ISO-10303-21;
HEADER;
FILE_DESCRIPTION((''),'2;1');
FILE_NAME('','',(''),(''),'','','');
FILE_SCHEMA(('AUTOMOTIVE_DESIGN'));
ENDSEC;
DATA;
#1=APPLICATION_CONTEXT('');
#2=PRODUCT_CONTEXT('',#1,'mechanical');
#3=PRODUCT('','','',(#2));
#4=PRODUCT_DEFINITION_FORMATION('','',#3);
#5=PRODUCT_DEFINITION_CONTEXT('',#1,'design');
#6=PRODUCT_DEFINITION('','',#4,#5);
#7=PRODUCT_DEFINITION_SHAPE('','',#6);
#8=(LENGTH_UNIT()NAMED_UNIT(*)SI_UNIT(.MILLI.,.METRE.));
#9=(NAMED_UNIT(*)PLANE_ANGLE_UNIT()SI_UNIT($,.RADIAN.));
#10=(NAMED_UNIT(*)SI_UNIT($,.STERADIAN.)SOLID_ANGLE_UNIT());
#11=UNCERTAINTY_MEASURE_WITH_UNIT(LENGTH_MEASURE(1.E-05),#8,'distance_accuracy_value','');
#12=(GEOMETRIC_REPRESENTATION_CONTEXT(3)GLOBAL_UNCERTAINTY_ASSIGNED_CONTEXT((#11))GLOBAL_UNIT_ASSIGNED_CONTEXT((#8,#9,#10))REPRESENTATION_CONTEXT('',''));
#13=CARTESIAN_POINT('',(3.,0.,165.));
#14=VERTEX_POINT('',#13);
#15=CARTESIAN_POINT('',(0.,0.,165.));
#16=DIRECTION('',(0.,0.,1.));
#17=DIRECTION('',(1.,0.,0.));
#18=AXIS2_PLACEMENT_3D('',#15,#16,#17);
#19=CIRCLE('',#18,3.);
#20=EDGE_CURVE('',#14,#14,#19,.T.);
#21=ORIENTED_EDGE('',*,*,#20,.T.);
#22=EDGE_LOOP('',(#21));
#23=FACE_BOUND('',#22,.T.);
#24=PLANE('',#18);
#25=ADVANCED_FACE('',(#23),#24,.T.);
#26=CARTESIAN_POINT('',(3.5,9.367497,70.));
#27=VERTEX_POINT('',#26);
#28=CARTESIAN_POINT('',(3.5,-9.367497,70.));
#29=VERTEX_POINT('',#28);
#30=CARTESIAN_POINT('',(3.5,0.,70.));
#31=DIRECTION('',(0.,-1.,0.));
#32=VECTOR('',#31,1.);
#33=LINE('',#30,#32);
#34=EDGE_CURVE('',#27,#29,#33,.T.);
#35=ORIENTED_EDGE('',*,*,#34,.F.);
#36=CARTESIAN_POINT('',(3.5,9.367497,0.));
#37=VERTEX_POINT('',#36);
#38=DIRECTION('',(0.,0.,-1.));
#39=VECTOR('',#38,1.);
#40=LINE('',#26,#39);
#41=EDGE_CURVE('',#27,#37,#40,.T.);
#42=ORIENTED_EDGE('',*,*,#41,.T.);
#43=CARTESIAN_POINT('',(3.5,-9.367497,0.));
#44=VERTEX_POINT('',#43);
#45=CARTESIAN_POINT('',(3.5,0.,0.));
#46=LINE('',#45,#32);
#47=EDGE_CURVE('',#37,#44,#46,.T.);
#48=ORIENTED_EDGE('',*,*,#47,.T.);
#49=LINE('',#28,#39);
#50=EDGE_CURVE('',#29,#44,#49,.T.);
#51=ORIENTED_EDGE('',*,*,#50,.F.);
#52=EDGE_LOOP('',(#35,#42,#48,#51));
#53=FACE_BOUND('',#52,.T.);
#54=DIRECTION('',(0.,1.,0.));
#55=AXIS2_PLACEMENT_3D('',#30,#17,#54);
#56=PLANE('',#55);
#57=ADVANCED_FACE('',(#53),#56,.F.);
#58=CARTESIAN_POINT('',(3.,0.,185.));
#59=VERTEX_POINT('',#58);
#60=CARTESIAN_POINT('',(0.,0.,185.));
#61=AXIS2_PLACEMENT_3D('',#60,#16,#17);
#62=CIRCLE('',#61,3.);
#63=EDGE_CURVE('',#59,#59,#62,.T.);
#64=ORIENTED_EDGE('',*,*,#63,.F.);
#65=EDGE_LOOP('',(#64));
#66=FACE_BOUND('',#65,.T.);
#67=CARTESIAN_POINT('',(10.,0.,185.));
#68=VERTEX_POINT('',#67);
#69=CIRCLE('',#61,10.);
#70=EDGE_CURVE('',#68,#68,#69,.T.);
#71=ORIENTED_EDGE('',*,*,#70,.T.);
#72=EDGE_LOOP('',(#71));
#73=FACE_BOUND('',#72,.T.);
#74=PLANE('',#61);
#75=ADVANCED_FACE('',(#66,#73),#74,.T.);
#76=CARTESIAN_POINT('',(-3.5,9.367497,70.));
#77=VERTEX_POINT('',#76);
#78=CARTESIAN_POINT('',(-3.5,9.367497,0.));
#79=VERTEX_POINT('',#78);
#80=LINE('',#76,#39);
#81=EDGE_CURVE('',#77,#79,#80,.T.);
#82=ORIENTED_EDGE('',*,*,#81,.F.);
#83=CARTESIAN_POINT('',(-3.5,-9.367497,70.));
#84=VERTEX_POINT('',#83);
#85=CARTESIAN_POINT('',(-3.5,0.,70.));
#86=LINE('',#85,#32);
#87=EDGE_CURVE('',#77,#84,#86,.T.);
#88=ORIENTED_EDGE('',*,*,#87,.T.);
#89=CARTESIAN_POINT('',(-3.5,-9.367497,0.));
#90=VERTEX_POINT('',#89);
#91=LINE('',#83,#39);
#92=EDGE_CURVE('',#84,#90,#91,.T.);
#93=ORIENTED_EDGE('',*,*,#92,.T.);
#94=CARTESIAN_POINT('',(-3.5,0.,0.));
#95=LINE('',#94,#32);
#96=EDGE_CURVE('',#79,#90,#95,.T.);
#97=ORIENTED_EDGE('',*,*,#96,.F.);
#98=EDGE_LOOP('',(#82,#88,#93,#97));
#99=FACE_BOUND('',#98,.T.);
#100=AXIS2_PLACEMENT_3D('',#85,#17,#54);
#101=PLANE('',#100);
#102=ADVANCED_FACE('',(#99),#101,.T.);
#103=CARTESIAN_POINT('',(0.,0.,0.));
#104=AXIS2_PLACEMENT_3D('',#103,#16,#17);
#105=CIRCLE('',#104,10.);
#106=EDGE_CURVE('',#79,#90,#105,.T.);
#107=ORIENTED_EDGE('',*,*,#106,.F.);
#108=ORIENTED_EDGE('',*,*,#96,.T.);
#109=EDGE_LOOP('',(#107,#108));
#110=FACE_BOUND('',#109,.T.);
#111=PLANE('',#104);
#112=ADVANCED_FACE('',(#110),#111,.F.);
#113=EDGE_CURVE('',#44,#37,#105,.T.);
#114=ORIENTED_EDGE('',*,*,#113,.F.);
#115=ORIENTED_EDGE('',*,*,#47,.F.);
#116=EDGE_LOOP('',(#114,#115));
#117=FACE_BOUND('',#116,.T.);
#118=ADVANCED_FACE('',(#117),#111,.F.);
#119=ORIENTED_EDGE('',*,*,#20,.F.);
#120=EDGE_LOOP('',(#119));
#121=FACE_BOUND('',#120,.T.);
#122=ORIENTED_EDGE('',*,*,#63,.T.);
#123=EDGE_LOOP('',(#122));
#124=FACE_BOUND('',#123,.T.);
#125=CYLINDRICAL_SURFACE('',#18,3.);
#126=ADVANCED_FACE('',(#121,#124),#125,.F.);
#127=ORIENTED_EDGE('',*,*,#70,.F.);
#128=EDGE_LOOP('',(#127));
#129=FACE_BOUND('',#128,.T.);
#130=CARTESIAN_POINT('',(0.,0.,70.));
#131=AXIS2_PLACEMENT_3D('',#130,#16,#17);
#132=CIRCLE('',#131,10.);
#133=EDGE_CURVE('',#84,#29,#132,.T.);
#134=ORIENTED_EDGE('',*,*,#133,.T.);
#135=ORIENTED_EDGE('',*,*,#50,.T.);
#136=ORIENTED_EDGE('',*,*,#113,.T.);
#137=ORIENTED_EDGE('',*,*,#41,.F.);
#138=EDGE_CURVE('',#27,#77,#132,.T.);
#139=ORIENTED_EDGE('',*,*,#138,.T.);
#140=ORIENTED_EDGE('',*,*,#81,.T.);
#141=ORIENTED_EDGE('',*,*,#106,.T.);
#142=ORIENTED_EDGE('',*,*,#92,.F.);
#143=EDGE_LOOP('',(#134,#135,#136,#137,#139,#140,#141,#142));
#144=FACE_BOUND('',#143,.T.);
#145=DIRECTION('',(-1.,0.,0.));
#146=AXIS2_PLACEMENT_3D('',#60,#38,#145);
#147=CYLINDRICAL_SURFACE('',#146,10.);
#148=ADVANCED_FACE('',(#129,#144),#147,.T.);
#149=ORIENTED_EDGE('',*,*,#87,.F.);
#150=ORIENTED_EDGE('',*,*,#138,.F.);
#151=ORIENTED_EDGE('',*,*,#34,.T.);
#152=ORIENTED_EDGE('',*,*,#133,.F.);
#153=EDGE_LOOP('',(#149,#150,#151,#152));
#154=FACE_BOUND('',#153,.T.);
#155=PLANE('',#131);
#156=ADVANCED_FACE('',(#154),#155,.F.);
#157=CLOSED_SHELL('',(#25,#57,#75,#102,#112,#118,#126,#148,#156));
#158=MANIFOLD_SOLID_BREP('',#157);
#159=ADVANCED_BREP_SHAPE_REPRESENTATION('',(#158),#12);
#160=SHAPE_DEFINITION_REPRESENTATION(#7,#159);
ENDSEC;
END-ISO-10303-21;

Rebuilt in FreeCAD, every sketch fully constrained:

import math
import FreeCAD as App
import Part
import Sketcher
from FreeCAD import Vector

doc = App.newDocument("Part")
body = doc.addObject("PartDesign::Body", "Body")

# Sketch on XY plane
sketch1 = doc.addObject("Sketcher::SketchObject", "Sketch")
body.addObject(sketch1)
sketch1.AttachmentSupport = (doc.XY_Plane, [""])
sketch1.MapMode = "FlatFace"
sketch1.addGeometry(Part.Circle(Vector(0, 0, 0), Vector(0, 0, 1), 10), False)
sketch1.addConstraint([
    Sketcher.Constraint("Coincident", 0, 3, -1, 1),
    Sketcher.Constraint("Diameter", 0, 20.0),
])
pad1 = doc.addObject("PartDesign::Pad", "Pad")
body.addObject(pad1)
pad1.Profile = sketch1
pad1.Length = 185

# Sketch on XY plane
sketch2 = doc.addObject("Sketcher::SketchObject", "Sketch001")
body.addObject(sketch2)
sketch2.AttachmentSupport = (doc.XY_Plane, [""])
sketch2.MapMode = "FlatFace"
sketch2.addGeometry([
    Part.LineSegment(Vector(4, -9, 0), Vector(4, 9, 0)),
    Part.ArcOfCircle(Part.Circle(Vector(0, 0, 0), Vector(0, 0, 1), 10), math.radians(70), math.radians(110)),
    Part.LineSegment(Vector(-4, 9, 0), Vector(-4, -9, 0)),
    Part.ArcOfCircle(Part.Circle(Vector(0, 0, 0), Vector(0, 0, 1), 10), math.radians(-110), math.radians(-70)),
], False)
sketch2.addConstraint([
    Sketcher.Constraint("Coincident", 0, 2, 1, 1),
    Sketcher.Constraint("Coincident", 1, 2, 2, 1),
    Sketcher.Constraint("Coincident", 2, 2, 3, 1),
    Sketcher.Constraint("Coincident", 3, 2, 0, 1),
    Sketcher.Constraint("Vertical", 0),
    Sketcher.Constraint("Vertical", 2),
    Sketcher.Constraint("Coincident", 1, 3, -1, 1),
    Sketcher.Constraint("Coincident", 3, 3, -1, 1),
    Sketcher.Constraint("Equal", 1, 3),
    Sketcher.Constraint("Horizontal", 0, 2, 1, 2),
    Sketcher.Constraint("Radius", 1, 10.0),
    Sketcher.Constraint("DistanceX", 1, 2, 0, 2, 7.0),
])
pocket1 = doc.addObject("PartDesign::Pocket", "Pocket")
body.addObject(pocket1)
pocket1.Profile = sketch2
pocket1.Length = 70
pocket1.Reversed = True

# Sketch on XY plane
sketch3 = doc.addObject("Sketcher::SketchObject", "Sketch002")
body.addObject(sketch3)
sketch3.AttachmentSupport = (doc.XY_Plane, [""])
sketch3.MapMode = "FlatFace"
sketch3.AttachmentOffset = App.Placement(Vector(0, 0, 185), App.Rotation())
sketch3.addGeometry(Part.Circle(Vector(0, 0, 0), Vector(0, 0, 1), 3), False)
sketch3.addConstraint([
    Sketcher.Constraint("Coincident", 0, 3, -1, 1),
    Sketcher.Constraint("Diameter", 0, 6.0),
])
pocket2 = doc.addObject("PartDesign::Pocket", "Pocket001")
body.addObject(pocket2)
pocket2.Profile = sketch3
pocket2.Length = 20

doc.recompute()
